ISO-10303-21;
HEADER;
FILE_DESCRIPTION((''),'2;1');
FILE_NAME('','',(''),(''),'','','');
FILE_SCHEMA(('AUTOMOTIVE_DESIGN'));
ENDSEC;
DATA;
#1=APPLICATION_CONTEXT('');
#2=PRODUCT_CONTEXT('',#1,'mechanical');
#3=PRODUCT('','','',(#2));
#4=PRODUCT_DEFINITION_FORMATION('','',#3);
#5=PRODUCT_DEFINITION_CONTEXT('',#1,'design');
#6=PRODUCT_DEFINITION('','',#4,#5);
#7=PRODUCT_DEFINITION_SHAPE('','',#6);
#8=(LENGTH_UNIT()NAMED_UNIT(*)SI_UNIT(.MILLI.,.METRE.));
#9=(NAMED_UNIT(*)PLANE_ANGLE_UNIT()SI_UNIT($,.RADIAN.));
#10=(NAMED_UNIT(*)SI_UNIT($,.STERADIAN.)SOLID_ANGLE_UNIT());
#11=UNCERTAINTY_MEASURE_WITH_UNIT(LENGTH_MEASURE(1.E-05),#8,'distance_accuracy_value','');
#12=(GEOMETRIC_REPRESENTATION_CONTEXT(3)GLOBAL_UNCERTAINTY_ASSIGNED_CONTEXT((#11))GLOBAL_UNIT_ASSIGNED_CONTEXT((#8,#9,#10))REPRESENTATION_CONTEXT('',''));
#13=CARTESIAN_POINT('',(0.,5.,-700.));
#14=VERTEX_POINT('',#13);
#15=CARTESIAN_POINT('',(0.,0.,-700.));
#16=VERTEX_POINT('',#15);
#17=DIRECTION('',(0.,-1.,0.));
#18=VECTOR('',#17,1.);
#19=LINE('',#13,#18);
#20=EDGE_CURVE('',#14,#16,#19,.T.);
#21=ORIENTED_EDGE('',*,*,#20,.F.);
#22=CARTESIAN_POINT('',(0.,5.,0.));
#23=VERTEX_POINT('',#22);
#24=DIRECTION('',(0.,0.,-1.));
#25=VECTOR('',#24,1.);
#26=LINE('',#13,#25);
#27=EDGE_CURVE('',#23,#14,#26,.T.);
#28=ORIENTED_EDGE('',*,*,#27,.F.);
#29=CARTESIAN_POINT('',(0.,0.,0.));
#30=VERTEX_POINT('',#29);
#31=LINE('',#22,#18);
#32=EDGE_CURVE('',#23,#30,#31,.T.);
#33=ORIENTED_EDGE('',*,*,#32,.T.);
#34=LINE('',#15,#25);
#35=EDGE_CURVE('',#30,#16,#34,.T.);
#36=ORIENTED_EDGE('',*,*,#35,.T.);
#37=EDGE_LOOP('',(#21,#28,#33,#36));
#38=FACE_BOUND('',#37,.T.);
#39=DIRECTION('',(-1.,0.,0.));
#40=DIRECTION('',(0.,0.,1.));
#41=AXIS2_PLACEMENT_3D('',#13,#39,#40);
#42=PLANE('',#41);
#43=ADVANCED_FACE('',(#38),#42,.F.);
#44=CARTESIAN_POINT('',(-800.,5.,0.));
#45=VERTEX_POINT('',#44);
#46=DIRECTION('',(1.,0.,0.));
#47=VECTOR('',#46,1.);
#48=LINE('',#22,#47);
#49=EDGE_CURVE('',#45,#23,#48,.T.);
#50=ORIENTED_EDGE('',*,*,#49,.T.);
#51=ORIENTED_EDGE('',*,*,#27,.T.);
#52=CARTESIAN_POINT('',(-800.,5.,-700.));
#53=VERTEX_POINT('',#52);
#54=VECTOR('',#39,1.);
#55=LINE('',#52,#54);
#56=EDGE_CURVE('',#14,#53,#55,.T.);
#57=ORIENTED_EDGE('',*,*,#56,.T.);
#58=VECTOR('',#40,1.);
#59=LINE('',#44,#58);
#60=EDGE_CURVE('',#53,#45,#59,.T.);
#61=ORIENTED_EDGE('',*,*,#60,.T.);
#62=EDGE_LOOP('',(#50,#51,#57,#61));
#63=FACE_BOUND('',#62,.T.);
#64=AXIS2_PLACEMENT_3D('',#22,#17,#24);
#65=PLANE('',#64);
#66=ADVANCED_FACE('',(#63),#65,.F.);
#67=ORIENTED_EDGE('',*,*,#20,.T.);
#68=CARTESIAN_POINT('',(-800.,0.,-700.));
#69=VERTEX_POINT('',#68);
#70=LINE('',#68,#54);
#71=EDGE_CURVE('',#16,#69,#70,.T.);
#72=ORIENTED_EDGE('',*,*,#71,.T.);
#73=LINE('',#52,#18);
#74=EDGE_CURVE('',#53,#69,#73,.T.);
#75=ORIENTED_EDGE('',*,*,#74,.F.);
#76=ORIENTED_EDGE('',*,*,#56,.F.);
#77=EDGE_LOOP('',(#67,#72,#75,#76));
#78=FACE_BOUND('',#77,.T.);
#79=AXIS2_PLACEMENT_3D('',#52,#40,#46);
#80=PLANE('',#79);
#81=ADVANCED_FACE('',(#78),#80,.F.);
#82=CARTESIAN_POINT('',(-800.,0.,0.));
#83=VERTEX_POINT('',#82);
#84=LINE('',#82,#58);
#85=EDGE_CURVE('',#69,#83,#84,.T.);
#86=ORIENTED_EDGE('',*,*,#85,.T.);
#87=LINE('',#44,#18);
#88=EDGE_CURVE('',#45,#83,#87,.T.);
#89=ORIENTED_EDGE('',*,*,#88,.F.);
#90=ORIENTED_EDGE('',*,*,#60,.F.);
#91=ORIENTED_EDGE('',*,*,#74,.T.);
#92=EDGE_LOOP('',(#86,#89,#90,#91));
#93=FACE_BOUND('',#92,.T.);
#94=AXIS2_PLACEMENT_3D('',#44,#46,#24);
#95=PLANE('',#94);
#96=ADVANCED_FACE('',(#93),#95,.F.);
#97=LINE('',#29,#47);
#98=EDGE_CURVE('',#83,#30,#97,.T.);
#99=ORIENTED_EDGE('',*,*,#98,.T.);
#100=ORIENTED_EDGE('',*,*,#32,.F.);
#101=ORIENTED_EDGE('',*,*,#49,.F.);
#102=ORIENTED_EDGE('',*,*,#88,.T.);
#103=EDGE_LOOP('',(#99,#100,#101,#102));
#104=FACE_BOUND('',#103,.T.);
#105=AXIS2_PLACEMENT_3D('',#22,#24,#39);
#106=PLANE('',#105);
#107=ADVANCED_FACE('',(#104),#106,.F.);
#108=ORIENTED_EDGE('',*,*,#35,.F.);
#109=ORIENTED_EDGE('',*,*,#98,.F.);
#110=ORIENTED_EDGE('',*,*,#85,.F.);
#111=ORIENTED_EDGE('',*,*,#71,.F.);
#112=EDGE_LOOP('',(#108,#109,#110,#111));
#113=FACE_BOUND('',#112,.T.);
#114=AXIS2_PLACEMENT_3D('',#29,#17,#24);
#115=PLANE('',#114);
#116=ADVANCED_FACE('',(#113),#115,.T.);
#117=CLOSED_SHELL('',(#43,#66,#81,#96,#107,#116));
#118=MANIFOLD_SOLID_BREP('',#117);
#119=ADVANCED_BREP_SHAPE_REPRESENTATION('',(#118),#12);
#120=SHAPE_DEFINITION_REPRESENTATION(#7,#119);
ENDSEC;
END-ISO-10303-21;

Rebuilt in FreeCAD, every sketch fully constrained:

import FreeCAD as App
import Part
import Sketcher
Q = App.Units.Quantity


def add_polygon(sketch, points):
    """Adds a closed chain of lines whose ends are joined by coincident constraints."""
    first, n = sketch.GeometryCount, len(points)
    for a, b in zip(points, points[1:] + points[:1]):
        sketch.addGeometry(Part.LineSegment(App.Vector(*a, 0), App.Vector(*b, 0)), False)
    for i in range(n):
        sketch.addConstraint(Sketcher.Constraint("Coincident", first + i, 2, first + (i + 1) % n, 1))

doc = App.newDocument("Part")
body = doc.addObject("PartDesign::Body", "Body")

sketch1 = body.newObject("Sketcher::SketchObject", "Sketch")
sketch1.AttachmentSupport = (doc.getObject("XZ_Plane"), [""])
sketch1.MapMode = "FlatFace"
add_polygon(sketch1, [(-800, -700), (-800, 0), (0, 0), (0, -700)])
sketch1.addConstraint([
    Sketcher.Constraint("Vertical", 0),
    Sketcher.Constraint("Horizontal", 1),
    Sketcher.Constraint("Vertical", 2),
    Sketcher.Constraint("Horizontal", 3),
    Sketcher.Constraint("Coincident", 1, 2, -1, 1),
    Sketcher.Constraint("DistanceX", 1, 1, 1, 2, Q("800 mm")),
    Sketcher.Constraint("DistanceY", 0, 1, 0, 2, Q("700 mm")),
])
pad1 = body.newObject("PartDesign::Pad", "Pad")
pad1.Profile = sketch1
pad1.Length = 5
pad1.Reversed = True

doc.recompute()
